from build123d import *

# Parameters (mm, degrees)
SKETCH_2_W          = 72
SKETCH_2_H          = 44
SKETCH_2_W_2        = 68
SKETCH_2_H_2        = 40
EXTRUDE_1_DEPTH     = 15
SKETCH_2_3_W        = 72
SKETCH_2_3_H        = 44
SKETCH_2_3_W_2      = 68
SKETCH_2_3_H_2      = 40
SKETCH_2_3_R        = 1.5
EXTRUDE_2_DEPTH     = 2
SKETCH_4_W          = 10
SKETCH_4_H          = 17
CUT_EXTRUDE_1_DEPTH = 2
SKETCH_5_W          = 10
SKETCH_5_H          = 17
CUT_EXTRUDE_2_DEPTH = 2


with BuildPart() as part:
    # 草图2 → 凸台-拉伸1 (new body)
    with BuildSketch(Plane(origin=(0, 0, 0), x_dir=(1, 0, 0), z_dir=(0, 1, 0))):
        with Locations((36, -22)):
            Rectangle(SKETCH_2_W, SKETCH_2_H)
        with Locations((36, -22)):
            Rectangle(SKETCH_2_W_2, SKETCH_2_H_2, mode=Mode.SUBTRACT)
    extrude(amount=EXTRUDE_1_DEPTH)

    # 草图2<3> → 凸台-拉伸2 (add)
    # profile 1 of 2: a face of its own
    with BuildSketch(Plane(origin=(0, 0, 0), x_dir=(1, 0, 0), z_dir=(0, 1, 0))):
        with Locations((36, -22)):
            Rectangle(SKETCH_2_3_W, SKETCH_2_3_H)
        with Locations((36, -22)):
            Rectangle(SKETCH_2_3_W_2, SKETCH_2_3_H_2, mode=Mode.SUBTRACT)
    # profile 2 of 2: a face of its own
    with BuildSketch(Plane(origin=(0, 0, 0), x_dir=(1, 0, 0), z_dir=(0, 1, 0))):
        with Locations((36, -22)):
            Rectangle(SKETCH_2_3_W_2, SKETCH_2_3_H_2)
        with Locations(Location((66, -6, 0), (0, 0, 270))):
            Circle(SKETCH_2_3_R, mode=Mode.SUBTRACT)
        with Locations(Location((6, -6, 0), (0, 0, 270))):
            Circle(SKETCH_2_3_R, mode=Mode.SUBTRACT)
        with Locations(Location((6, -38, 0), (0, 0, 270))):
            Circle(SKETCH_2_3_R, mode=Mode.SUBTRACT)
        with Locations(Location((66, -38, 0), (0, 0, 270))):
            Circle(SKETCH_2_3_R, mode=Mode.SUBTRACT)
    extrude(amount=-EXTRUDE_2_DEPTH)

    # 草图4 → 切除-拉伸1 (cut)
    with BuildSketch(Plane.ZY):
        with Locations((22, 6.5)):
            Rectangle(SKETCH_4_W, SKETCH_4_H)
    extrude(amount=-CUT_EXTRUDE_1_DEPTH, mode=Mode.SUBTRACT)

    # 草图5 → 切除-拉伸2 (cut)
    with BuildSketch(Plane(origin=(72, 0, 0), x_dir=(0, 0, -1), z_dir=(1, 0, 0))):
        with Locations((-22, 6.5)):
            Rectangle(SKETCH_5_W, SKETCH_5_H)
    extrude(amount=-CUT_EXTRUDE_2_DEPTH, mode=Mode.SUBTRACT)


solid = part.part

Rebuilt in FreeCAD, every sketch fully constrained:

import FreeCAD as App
import Part
import Sketcher
from FreeCAD import Vector


def add_polygon(sketch, points):
    """Adds a closed chain of lines whose ends are joined by coincident constraints."""
    first, n = sketch.GeometryCount, len(points)
    for a, b in zip(points, points[1:] + points[:1]):
        sketch.addGeometry(Part.LineSegment(App.Vector(*a, 0), App.Vector(*b, 0)), False)
    for i in range(n):
        sketch.addConstraint(Sketcher.Constraint("Coincident", first + i, 2, first + (i + 1) % n, 1))

doc = App.newDocument("Part")
body = doc.addObject("PartDesign::Body", "Body")

# Sketch on XZ plane
sketch1 = doc.addObject("Sketcher::SketchObject", "Sketch")
body.addObject(sketch1)
sketch1.AttachmentSupport = (doc.XZ_Plane, [""])
sketch1.MapMode = "FlatFace"
add_polygon(sketch1, [(0, 0), (0, 44), (72, 44), (72, 0)])  # lines 0-3
add_polygon(sketch1, [(70, 42), (2, 42), (2, 2), (70, 2)])  # lines 4-7
sketch1.addConstraint([
    Sketcher.Constraint("Vertical", 0),
    Sketcher.Constraint("Horizontal", 1),
    Sketcher.Constraint("Vertical", 2),
    Sketcher.Constraint("Horizontal", 3),
    Sketcher.Constraint("Horizontal", 4),
    Sketcher.Constraint("Vertical", 5),
    Sketcher.Constraint("Horizontal", 6),
    Sketcher.Constraint("Vertical", 7),
    Sketcher.Constraint("Coincident", 3, 2, -1, 1),
    Sketcher.Constraint("DistanceX", 1, 1, 1, 2, 72.0),
    Sketcher.Constraint("DistanceX", 4, 2, 4, 1, 68.0),
    Sketcher.Constraint("DistanceY", 0, 1, 0, 2, 44.0),
    Sketcher.Constraint("DistanceY", 5, 2, 5, 1, 40.0),
    Sketcher.Constraint("DistanceX", -1, 1, 4, 2, 2.0),
    Sketcher.Constraint("DistanceY", -1, 1, 4, 2, 42.0),
])
pad1 = doc.addObject("PartDesign::Pad", "Pad")
body.addObject(pad1)
pad1.Profile = sketch1
pad1.Length = 15
pad1.Reversed = True

# Sketch on XZ plane
sketch2 = doc.addObject("Sketcher::SketchObject", "Sketch001")
body.addObject(sketch2)
sketch2.AttachmentSupport = (doc.XZ_Plane, [""])
sketch2.MapMode = "FlatFace"
add_polygon(sketch2, [(0, 0), (0, 44), (72, 44), (72, 0)])  # lines 0-3
sketch2.addGeometry(Part.Circle(Vector(6, 38, 0), Vector(0, 0, 1), 1.5), False)  # 4
sketch2.addGeometry(Part.Circle(Vector(66, 6, 0), Vector(0, 0, 1), 1.5), False)  # 5
sketch2.addGeometry(Part.Circle(Vector(66, 38, 0), Vector(0, 0, 1), 1.5), False)  # 6
sketch2.addGeometry(Part.Circle(Vector(6, 6, 0), Vector(0, 0, 1), 1.5), False)  # 7
sketch2.addConstraint([
    Sketcher.Constraint("Vertical", 0),
    Sketcher.Constraint("Horizontal", 1),
    Sketcher.Constraint("Vertical", 2),
    Sketcher.Constraint("Horizontal", 3),
    Sketcher.Constraint("Coincident", 3, 2, -1, 1),
    Sketcher.Constraint("Equal", 4, 5),
    Sketcher.Constraint("Equal", 5, 6),
    Sketcher.Constraint("Equal", 6, 7),
    Sketcher.Constraint("Horizontal", 4, 3, 6, 3),
    Sketcher.Constraint("Horizontal", 5, 3, 7, 3),
    Sketcher.Constraint("Vertical", 5, 3, 6, 3),
    Sketcher.Constraint("Vertical", 4, 3, 7, 3),
    Sketcher.Constraint("Diameter", 4, 3.0),
    Sketcher.Constraint("DistanceX", 1, 1, 1, 2, 72.0),
    Sketcher.Constraint("DistanceY", 0, 1, 0, 2, 44.0),
    Sketcher.Constraint("DistanceX", -1, 1, 4, 3, 6.0),
    Sketcher.Constraint("DistanceY", -1, 1, 4, 3, 38.0),
    Sketcher.Constraint("DistanceX", -1, 1, 5, 3, 66.0),
    Sketcher.Constraint("DistanceY", -1, 1, 5, 3, 6.0),
])
pad2 = doc.addObject("PartDesign::Pad", "Pad001")
body.addObject(pad2)
pad2.Profile = sketch2
pad2.Length = 2

# Sketch on YZ plane
sketch3 = doc.addObject("Sketcher::SketchObject", "Sketch002")
body.addObject(sketch3)
sketch3.AttachmentSupport = (doc.YZ_Plane, [""])
sketch3.MapMode = "FlatFace"
add_polygon(sketch3, [(15, 17), (-2, 17), (-2, 27), (15, 27)])  # lines 0-3
sketch3.addConstraint([
    Sketcher.Constraint("Horizontal", 0),
    Sketcher.Constraint("Vertical", 1),
    Sketcher.Constraint("Horizontal", 2),
    Sketcher.Constraint("Vertical", 3),
    Sketcher.Constraint("DistanceX", 0, 2, 0, 1, 17.0),
    Sketcher.Constraint("DistanceY", 1, 1, 1, 2, 10.0),
    Sketcher.Constraint("DistanceX", 0, 2, -1, 1, 2.0),
    Sketcher.Constraint("DistanceY", -1, 1, 0, 2, 17.0),
])
pocket1 = doc.addObject("PartDesign::Pocket", "Pocket")
body.addObject(pocket1)
pocket1.Profile = sketch3
pocket1.Length = 2
pocket1.Reversed = True

# Sketch on YZ plane
sketch4 = doc.addObject("Sketcher::SketchObject", "Sketch003")
body.addObject(sketch4)
sketch4.AttachmentSupport = (doc.YZ_Plane, [""])
sketch4.MapMode = "FlatFace"
sketch4.AttachmentOffset = App.Placement(Vector(0, 0, 72), App.Rotation())
add_polygon(sketch4, [(15, 27), (-2, 27), (-2, 17), (15, 17)])  # lines 0-3
sketch4.addConstraint([
    Sketcher.Constraint("Horizontal", 0),
    Sketcher.Constraint("Vertical", 1),
    Sketcher.Constraint("Horizontal", 2),
    Sketcher.Constraint("Vertical", 3),
    Sketcher.Constraint("DistanceX", 0, 2, 0, 1, 17.0),
    Sketcher.Constraint("DistanceY", 1, 2, 1, 1, 10.0),
    Sketcher.Constraint("DistanceX", 0, 2, -1, 1, 2.0),
    Sketcher.Constraint("DistanceY", -1, 1, 0, 2, 27.0),
])
pocket2 = doc.addObject("PartDesign::Pocket", "Pocket001")
body.addObject(pocket2)
pocket2.Profile = sketch4
pocket2.Length = 2

doc.recompute()
